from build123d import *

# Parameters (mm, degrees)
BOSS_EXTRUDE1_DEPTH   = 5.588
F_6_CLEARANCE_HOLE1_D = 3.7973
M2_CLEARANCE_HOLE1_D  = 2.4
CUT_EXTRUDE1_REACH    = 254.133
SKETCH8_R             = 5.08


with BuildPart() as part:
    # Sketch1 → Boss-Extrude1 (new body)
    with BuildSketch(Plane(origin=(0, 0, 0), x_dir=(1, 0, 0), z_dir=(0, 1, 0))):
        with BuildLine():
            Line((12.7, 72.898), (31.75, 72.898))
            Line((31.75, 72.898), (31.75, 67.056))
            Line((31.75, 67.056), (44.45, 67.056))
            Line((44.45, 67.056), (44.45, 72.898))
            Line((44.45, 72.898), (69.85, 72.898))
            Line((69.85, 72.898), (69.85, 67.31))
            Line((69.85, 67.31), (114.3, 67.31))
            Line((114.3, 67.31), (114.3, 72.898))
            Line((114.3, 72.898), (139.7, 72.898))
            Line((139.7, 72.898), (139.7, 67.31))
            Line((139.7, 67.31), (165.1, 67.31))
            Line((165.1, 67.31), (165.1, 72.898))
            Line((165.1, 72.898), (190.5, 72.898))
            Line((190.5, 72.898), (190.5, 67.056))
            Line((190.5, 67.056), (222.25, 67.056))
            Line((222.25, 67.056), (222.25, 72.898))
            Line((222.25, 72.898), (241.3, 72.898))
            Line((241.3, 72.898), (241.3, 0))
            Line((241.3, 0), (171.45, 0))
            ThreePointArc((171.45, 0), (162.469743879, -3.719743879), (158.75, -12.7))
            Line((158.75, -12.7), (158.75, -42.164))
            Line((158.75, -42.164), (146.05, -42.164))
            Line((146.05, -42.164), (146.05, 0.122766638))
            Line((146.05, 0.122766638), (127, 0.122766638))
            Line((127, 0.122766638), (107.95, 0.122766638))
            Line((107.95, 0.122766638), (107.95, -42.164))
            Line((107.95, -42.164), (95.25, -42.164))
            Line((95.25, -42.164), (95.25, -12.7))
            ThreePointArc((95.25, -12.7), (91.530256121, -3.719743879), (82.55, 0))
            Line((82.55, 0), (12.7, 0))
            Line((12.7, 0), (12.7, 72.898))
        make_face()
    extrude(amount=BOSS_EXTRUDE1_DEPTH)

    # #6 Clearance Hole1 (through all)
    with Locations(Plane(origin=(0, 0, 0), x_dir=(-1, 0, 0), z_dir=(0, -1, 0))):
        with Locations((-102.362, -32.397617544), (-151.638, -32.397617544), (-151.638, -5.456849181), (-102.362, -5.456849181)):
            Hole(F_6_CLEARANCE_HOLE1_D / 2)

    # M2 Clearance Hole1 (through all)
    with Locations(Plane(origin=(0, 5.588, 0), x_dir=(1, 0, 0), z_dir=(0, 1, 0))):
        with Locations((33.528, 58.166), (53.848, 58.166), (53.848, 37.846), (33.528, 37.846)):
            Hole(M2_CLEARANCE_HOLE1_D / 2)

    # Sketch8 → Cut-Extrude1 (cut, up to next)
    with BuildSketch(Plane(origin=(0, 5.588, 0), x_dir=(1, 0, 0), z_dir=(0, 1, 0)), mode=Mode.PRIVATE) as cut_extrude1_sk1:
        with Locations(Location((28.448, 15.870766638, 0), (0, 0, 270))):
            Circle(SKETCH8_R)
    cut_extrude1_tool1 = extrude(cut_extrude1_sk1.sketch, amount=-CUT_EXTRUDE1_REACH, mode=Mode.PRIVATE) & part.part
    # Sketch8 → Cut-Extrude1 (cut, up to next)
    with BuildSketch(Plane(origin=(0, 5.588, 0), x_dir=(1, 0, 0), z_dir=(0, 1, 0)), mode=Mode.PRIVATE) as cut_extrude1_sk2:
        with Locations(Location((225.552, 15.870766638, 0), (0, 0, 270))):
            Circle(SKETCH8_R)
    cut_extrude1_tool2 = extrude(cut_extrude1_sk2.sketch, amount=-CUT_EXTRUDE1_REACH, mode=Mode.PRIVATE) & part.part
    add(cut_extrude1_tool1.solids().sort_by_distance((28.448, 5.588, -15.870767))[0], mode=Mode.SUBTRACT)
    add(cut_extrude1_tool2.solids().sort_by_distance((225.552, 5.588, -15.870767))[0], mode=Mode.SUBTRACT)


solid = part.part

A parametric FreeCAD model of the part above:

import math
import FreeCAD as App
import Part
import Sketcher

V = App.Vector
Q = App.Units.Quantity

doc = App.newDocument("Part")
body = doc.addObject("PartDesign::Body", "Body")

# Sketch on XZ plane
sketch1 = body.newObject("Sketcher::SketchObject", "Sketch")
sketch1.AttachmentSupport = (doc.getObject("XZ_Plane"), [""])
sketch1.MapMode = "FlatFace"
sketch1.addGeometry([
    Part.LineSegment(V(32, -73, 0), V(13, -73, 0)),  # 0
    Part.LineSegment(V(13, -73, 0), V(13, 0, 0)),  # 1
    Part.LineSegment(V(13, 0, 0), V(83, 0, 0)),  # 2
    Part.ArcOfCircle(Part.Circle(V(83, 13, 0), V(0, 0, 1), 13), math.radians(-90), math.radians(0)),  # 3
    Part.LineSegment(V(95, 13, 0), V(95, 42, 0)),  # 4
    Part.LineSegment(V(95, 42, 0), V(108, 42, 0)),  # 5
    Part.LineSegment(V(108, 42, 0), V(108, 0, 0)),  # 6
    Part.LineSegment(V(108, 0, 0), V(146, 0, 0)),  # 7
    Part.LineSegment(V(146, 0, 0), V(146, 42, 0)),  # 8
    Part.LineSegment(V(146, 42, 0), V(159, 42, 0)),  # 9
    Part.LineSegment(V(159, 42, 0), V(159, 13, 0)),  # 10
    Part.ArcOfCircle(Part.Circle(V(171, 13, 0), V(0, 0, 1), 13), math.radians(180), math.radians(270)),  # 11
    Part.LineSegment(V(171, 0, 0), V(241, 0, 0)),  # 12
    Part.LineSegment(V(241, 0, 0), V(241, -73, 0)),  # 13
    Part.LineSegment(V(241, -73, 0), V(222, -73, 0)),  # 14
    Part.LineSegment(V(222, -73, 0), V(222, -67, 0)),  # 15
    Part.LineSegment(V(222, -67, 0), V(190, -67, 0)),  # 16
    Part.LineSegment(V(190, -67, 0), V(190, -73, 0)),  # 17
    Part.LineSegment(V(190, -73, 0), V(165, -73, 0)),  # 18
    Part.LineSegment(V(165, -73, 0), V(165, -67, 0)),  # 19
    Part.LineSegment(V(165, -67, 0), V(140, -67, 0)),  # 20
    Part.LineSegment(V(140, -67, 0), V(140, -73, 0)),  # 21
    Part.LineSegment(V(140, -73, 0), V(114, -73, 0)),  # 22
    Part.LineSegment(V(114, -73, 0), V(114, -67, 0)),  # 23
    Part.LineSegment(V(114, -67, 0), V(70, -67, 0)),  # 24
    Part.LineSegment(V(70, -67, 0), V(70, -73, 0)),  # 25
    Part.LineSegment(V(70, -73, 0), V(44, -73, 0)),  # 26
    Part.LineSegment(V(44, -73, 0), V(44, -67, 0)),  # 27
    Part.LineSegment(V(44, -67, 0), V(32, -67, 0)),  # 28
    Part.LineSegment(V(32, -67, 0), V(32, -73, 0)),  # 29
], False)
sketch1.addConstraint([
    Sketcher.Constraint("Coincident", 0, 2, 1, 1),
    Sketcher.Constraint("Coincident", 1, 2, 2, 1),
    Sketcher.Constraint("Tangent", 2, 2, 3, 1),
    Sketcher.Constraint("Tangent", 3, 2, 4, 1),
    Sketcher.Constraint("Coincident", 4, 2, 5, 1),
    Sketcher.Constraint("Coincident", 5, 2, 6, 1),
    Sketcher.Constraint("Coincident", 6, 2, 7, 1),
    Sketcher.Constraint("Coincident", 7, 2, 8, 1),
    Sketcher.Constraint("Coincident", 8, 2, 9, 1),
    Sketcher.Constraint("Coincident", 9, 2, 10, 1),
    Sketcher.Constraint("Tangent", 10, 2, 11, 1),
    Sketcher.Constraint("Tangent", 11, 2, 12, 1),
    Sketcher.Constraint("Coincident", 12, 2, 13, 1),
    Sketcher.Constraint("Coincident", 13, 2, 14, 1),
    Sketcher.Constraint("Coincident", 14, 2, 15, 1),
    Sketcher.Constraint("Coincident", 15, 2, 16, 1),
    Sketcher.Constraint("Coincident", 16, 2, 17, 1),
    Sketcher.Constraint("Coincident", 17, 2, 18, 1),
    Sketcher.Constraint("Coincident", 18, 2, 19, 1),
    Sketcher.Constraint("Coincident", 19, 2, 20, 1),
    Sketcher.Constraint("Coincident", 20, 2, 21, 1),
    Sketcher.Constraint("Coincident", 21, 2, 22, 1),
    Sketcher.Constraint("Coincident", 22, 2, 23, 1),
    Sketcher.Constraint("Coincident", 23, 2, 24, 1),
    Sketcher.Constraint("Coincident", 24, 2, 25, 1),
    Sketcher.Constraint("Coincident", 25, 2, 26, 1),
    Sketcher.Constraint("Coincident", 26, 2, 27, 1),
    Sketcher.Constraint("Coincident", 27, 2, 28, 1),
    Sketcher.Constraint("Coincident", 28, 2, 29, 1),
    Sketcher.Constraint("Coincident", 29, 2, 0, 1),
    Sketcher.Constraint("Horizontal", 0),
    Sketcher.Constraint("Vertical", 1),
    Sketcher.Constraint("Horizontal", 2),
    Sketcher.Constraint("Vertical", 4),
    Sketcher.Constraint("Horizontal", 5),
    Sketcher.Constraint("Vertical", 6),
    Sketcher.Constraint("Horizontal", 7),
    Sketcher.Constraint("Vertical", 8),
    Sketcher.Constraint("Horizontal", 9),
    Sketcher.Constraint("Vertical", 10),
    Sketcher.Constraint("Horizontal", 12),
    Sketcher.Constraint("Vertical", 13),
    Sketcher.Constraint("Horizontal", 14),
    Sketcher.Constraint("Vertical", 15),
    Sketcher.Constraint("Horizontal", 16),
    Sketcher.Constraint("Vertical", 17),
    Sketcher.Constraint("Horizontal", 18),
    Sketcher.Constraint("Vertical", 19),
    Sketcher.Constraint("Horizontal", 20),
    Sketcher.Constraint("Vertical", 21),
    Sketcher.Constraint("Horizontal", 22),
    Sketcher.Constraint("Vertical", 23),
    Sketcher.Constraint("Horizontal", 24),
    Sketcher.Constraint("Vertical", 25),
    Sketcher.Constraint("Horizontal", 26),
    Sketcher.Constraint("Vertical", 27),
    Sketcher.Constraint("Horizontal", 28),
    Sketcher.Constraint("Vertical", 29),
    Sketcher.Constraint("Equal", 3, 11),
    Sketcher.Constraint("PointOnObject", 1, 2, -1),
    Sketcher.Constraint("PointOnObject", 11, 2, -1),
    Sketcher.Constraint("Horizontal", 5, 2, 8, 2),
    Sketcher.Constraint("Horizontal", 0, 2, 13, 2),
    Sketcher.Constraint("Horizontal", 14, 2, 17, 2),
    Sketcher.Constraint("Horizontal", 18, 2, 21, 2),
    Sketcher.Constraint("Horizontal", 20, 2, 23, 2),
    Sketcher.Constraint("Horizontal", 22, 2, 25, 2),
    Sketcher.Constraint("Horizontal", 16, 2, 27, 2),
    Sketcher.Constraint("Equal", 5, 9),
    Sketcher.Constraint("Equal", 2, 12),
    Sketcher.Constraint("Equal", 0, 14),
    Sketcher.Constraint("Equal", 18, 20),
    Sketcher.Constraint("Equal", 20, 22),
    Sketcher.Constraint("Equal", 22, 26),
    Sketcher.Constraint("Equal", 9, 28),
    Sketcher.Constraint("Radius", 3, Q("0.5 in")),
    Sketcher.Constraint("DistanceX", 18, 2, 18, 1, Q("1 in")),
    Sketcher.Constraint("DistanceX", 5, 1, 5, 2, Q("0.5 in")),
    Sketcher.Constraint("DistanceX", 7, 1, 7, 2, Q("1.5 in")),
    Sketcher.Constraint("DistanceX", 11, 2, 14, 2, Q("2 in")),
    Sketcher.Constraint("DistanceX", 16, 2, 13, 2, Q("2 in")),
    Sketcher.Constraint("DistanceX", 0, 2, 0, 1, Q("0.75 in")),
    Sketcher.Constraint("DistanceY", 1, 1, 1, 2, Q("2.87 in")),
    Sketcher.Constraint("DistanceY", 4, 1, 4, 2, Q("1.16 in")),
    Sketcher.Constraint("DistanceY", 15, 1, 15, 2, Q("0.23 in")),
    Sketcher.Constraint("DistanceY", 19, 1, 19, 2, Q("0.22 in")),
    Sketcher.Constraint("DistanceX", -1, 1, 0, 2, Q("0.5 in")),
    Sketcher.Constraint("DistanceY", 6, 2, 6, 1, Q("42.286767 mm")),
])
pad1 = body.newObject("PartDesign::Pad", "Pad")
pad1.Profile = sketch1
pad1.Length = Q("0.22 in")
pad1.Reversed = True

# Sketch on XZ plane
sketch2 = body.newObject("Sketcher::SketchObject", "Sketch001")
sketch2.AttachmentSupport = (doc.getObject("XZ_Plane"), [""])
sketch2.MapMode = "FlatFace"
sketch2.addGeometry([
    Part.Circle(V(102.4, 32.4, 0), V(0, 0, 1), 1.9),
    Part.Circle(V(151.6, 32.4, 0), V(0, 0, 1), 1.9),
    Part.Circle(V(151.6, 5.5, 0), V(0, 0, 1), 1.9),
    Part.Circle(V(102.4, 5.5, 0), V(0, 0, 1), 1.9),
], False)
sketch2.addConstraint([
    Sketcher.Constraint("Equal", 0, 1),
    Sketcher.Constraint("Equal", 1, 2),
    Sketcher.Constraint("Equal", 2, 3),
    Sketcher.Constraint("Horizontal", 0, 3, 1, 3),
    Sketcher.Constraint("Horizontal", 2, 3, 3, 3),
    Sketcher.Constraint("Vertical", 1, 3, 2, 3),
    Sketcher.Constraint("Vertical", 0, 3, 3, 3),
    Sketcher.Constraint("Diameter", 0, Q("0.1495 in")),
    Sketcher.Constraint("DistanceX", -1, 1, 0, 3, Q("4.03 in")),
    Sketcher.Constraint("DistanceX", -1, 1, 1, 3, Q("5.97 in")),
    Sketcher.Constraint("DistanceY", -1, 1, 2, 3, Q("5.456849 mm")),
    Sketcher.Constraint("DistanceY", 2, 3, 1, 3, Q("26.940768 mm")),
])
doc.recompute()
hole = body.newObject("PartDesign::Hole", "Hole")
hole.Profile = sketch2
hole.ThreadType = "None"
hole.Diameter = Q("0.1495 in")
hole.DepthType = "ThroughAll"

# Sketch on XZ plane
sketch3 = body.newObject("Sketcher::SketchObject", "Sketch002")
sketch3.AttachmentSupport = (doc.getObject("XZ_Plane"), [""])
sketch3.MapMode = "FlatFace"
sketch3.AttachmentOffset = App.Placement(V(0, 0, -0.22 * 25.4), App.Rotation())
sketch3.addGeometry([
    Part.Circle(V(33.5, -58.2, 0), V(0, 0, 1), 1.2),
    Part.Circle(V(53.8, -58.2, 0), V(0, 0, 1), 1.2),
    Part.Circle(V(53.8, -37.8, 0), V(0, 0, 1), 1.2),
    Part.Circle(V(33.5, -37.8, 0), V(0, 0, 1), 1.2),
], False)
sketch3.addConstraint([
    Sketcher.Constraint("Equal", 0, 1),
    Sketcher.Constraint("Equal", 1, 2),
    Sketcher.Constraint("Equal", 2, 3),
    Sketcher.Constraint("Horizontal", 0, 3, 1, 3),
    Sketcher.Constraint("Horizontal", 2, 3, 3, 3),
    Sketcher.Constraint("Vertical", 1, 3, 2, 3),
    Sketcher.Constraint("Vertical", 0, 3, 3, 3),
    Sketcher.Constraint("DistanceX", 0, 3, 1, 3, Q("0.8 in")),
    Sketcher.Constraint("DistanceY", 1, 3, 2, 3, Q("0.8 in")),
    Sketcher.Constraint("Diameter", 0, Q("2.4 mm")),
    Sketcher.Constraint("DistanceX", -1, 1, 0, 3, Q("1.32 in")),
    Sketcher.Constraint("DistanceY", 0, 3, -1, 1, Q("2.29 in")),
])
doc.recompute()
hole2 = body.newObject("PartDesign::Hole", "Hole001")
hole2.Profile = sketch3
hole2.ThreadType = "None"
hole2.Diameter = 2.4
hole2.DepthType = "ThroughAll"
hole2.Reversed = True

# Sketch on XZ plane
sketch4 = body.newObject("Sketcher::SketchObject", "Sketch003")
sketch4.AttachmentSupport = (doc.getObject("XZ_Plane"), [""])
sketch4.MapMode = "FlatFace"
sketch4.AttachmentOffset = App.Placement(V(0, 0, -0.22 * 25.4), App.Rotation())
sketch4.addGeometry(Part.Circle(V(28, -16, 0), V(0, 0, 1), 5), False)
sketch4.addConstraint([
    Sketcher.Constraint("Diameter", 0, Q("0.4 in")),
    Sketcher.Constraint("DistanceX", -1, 1, 0, 3, Q("1.12 in")),
    Sketcher.Constraint("DistanceY", 0, 3, -1, 1, Q("15.870767 mm")),
])
pocket1 = body.newObject("PartDesign::Pocket", "Pocket")
pocket1.Profile = sketch4
pocket1.Type = "UpToFirst"
pocket1.Reversed = True

# Sketch on XZ plane
sketch5 = body.newObject("Sketcher::SketchObject", "Sketch004")
sketch5.AttachmentSupport = (doc.getObject("XZ_Plane"), [""])
sketch5.MapMode = "FlatFace"
sketch5.AttachmentOffset = App.Placement(V(0, 0, -0.22 * 25.4), App.Rotation())
sketch5.addGeometry(Part.Circle(V(226, -16, 0), V(0, 0, 1), 5), False)
sketch5.addConstraint([
    Sketcher.Constraint("Diameter", 0, Q("0.4 in")),
    Sketcher.Constraint("DistanceX", -1, 1, 0, 3, Q("8.88 in")),
    Sketcher.Constraint("DistanceY", 0, 3, -1, 1, Q("15.870767 mm")),
])
pocket2 = body.newObject("PartDesign::Pocket", "Pocket001")
pocket2.Profile = sketch5
pocket2.Type = "UpToFirst"
pocket2.Reversed = True

doc.recompute()
